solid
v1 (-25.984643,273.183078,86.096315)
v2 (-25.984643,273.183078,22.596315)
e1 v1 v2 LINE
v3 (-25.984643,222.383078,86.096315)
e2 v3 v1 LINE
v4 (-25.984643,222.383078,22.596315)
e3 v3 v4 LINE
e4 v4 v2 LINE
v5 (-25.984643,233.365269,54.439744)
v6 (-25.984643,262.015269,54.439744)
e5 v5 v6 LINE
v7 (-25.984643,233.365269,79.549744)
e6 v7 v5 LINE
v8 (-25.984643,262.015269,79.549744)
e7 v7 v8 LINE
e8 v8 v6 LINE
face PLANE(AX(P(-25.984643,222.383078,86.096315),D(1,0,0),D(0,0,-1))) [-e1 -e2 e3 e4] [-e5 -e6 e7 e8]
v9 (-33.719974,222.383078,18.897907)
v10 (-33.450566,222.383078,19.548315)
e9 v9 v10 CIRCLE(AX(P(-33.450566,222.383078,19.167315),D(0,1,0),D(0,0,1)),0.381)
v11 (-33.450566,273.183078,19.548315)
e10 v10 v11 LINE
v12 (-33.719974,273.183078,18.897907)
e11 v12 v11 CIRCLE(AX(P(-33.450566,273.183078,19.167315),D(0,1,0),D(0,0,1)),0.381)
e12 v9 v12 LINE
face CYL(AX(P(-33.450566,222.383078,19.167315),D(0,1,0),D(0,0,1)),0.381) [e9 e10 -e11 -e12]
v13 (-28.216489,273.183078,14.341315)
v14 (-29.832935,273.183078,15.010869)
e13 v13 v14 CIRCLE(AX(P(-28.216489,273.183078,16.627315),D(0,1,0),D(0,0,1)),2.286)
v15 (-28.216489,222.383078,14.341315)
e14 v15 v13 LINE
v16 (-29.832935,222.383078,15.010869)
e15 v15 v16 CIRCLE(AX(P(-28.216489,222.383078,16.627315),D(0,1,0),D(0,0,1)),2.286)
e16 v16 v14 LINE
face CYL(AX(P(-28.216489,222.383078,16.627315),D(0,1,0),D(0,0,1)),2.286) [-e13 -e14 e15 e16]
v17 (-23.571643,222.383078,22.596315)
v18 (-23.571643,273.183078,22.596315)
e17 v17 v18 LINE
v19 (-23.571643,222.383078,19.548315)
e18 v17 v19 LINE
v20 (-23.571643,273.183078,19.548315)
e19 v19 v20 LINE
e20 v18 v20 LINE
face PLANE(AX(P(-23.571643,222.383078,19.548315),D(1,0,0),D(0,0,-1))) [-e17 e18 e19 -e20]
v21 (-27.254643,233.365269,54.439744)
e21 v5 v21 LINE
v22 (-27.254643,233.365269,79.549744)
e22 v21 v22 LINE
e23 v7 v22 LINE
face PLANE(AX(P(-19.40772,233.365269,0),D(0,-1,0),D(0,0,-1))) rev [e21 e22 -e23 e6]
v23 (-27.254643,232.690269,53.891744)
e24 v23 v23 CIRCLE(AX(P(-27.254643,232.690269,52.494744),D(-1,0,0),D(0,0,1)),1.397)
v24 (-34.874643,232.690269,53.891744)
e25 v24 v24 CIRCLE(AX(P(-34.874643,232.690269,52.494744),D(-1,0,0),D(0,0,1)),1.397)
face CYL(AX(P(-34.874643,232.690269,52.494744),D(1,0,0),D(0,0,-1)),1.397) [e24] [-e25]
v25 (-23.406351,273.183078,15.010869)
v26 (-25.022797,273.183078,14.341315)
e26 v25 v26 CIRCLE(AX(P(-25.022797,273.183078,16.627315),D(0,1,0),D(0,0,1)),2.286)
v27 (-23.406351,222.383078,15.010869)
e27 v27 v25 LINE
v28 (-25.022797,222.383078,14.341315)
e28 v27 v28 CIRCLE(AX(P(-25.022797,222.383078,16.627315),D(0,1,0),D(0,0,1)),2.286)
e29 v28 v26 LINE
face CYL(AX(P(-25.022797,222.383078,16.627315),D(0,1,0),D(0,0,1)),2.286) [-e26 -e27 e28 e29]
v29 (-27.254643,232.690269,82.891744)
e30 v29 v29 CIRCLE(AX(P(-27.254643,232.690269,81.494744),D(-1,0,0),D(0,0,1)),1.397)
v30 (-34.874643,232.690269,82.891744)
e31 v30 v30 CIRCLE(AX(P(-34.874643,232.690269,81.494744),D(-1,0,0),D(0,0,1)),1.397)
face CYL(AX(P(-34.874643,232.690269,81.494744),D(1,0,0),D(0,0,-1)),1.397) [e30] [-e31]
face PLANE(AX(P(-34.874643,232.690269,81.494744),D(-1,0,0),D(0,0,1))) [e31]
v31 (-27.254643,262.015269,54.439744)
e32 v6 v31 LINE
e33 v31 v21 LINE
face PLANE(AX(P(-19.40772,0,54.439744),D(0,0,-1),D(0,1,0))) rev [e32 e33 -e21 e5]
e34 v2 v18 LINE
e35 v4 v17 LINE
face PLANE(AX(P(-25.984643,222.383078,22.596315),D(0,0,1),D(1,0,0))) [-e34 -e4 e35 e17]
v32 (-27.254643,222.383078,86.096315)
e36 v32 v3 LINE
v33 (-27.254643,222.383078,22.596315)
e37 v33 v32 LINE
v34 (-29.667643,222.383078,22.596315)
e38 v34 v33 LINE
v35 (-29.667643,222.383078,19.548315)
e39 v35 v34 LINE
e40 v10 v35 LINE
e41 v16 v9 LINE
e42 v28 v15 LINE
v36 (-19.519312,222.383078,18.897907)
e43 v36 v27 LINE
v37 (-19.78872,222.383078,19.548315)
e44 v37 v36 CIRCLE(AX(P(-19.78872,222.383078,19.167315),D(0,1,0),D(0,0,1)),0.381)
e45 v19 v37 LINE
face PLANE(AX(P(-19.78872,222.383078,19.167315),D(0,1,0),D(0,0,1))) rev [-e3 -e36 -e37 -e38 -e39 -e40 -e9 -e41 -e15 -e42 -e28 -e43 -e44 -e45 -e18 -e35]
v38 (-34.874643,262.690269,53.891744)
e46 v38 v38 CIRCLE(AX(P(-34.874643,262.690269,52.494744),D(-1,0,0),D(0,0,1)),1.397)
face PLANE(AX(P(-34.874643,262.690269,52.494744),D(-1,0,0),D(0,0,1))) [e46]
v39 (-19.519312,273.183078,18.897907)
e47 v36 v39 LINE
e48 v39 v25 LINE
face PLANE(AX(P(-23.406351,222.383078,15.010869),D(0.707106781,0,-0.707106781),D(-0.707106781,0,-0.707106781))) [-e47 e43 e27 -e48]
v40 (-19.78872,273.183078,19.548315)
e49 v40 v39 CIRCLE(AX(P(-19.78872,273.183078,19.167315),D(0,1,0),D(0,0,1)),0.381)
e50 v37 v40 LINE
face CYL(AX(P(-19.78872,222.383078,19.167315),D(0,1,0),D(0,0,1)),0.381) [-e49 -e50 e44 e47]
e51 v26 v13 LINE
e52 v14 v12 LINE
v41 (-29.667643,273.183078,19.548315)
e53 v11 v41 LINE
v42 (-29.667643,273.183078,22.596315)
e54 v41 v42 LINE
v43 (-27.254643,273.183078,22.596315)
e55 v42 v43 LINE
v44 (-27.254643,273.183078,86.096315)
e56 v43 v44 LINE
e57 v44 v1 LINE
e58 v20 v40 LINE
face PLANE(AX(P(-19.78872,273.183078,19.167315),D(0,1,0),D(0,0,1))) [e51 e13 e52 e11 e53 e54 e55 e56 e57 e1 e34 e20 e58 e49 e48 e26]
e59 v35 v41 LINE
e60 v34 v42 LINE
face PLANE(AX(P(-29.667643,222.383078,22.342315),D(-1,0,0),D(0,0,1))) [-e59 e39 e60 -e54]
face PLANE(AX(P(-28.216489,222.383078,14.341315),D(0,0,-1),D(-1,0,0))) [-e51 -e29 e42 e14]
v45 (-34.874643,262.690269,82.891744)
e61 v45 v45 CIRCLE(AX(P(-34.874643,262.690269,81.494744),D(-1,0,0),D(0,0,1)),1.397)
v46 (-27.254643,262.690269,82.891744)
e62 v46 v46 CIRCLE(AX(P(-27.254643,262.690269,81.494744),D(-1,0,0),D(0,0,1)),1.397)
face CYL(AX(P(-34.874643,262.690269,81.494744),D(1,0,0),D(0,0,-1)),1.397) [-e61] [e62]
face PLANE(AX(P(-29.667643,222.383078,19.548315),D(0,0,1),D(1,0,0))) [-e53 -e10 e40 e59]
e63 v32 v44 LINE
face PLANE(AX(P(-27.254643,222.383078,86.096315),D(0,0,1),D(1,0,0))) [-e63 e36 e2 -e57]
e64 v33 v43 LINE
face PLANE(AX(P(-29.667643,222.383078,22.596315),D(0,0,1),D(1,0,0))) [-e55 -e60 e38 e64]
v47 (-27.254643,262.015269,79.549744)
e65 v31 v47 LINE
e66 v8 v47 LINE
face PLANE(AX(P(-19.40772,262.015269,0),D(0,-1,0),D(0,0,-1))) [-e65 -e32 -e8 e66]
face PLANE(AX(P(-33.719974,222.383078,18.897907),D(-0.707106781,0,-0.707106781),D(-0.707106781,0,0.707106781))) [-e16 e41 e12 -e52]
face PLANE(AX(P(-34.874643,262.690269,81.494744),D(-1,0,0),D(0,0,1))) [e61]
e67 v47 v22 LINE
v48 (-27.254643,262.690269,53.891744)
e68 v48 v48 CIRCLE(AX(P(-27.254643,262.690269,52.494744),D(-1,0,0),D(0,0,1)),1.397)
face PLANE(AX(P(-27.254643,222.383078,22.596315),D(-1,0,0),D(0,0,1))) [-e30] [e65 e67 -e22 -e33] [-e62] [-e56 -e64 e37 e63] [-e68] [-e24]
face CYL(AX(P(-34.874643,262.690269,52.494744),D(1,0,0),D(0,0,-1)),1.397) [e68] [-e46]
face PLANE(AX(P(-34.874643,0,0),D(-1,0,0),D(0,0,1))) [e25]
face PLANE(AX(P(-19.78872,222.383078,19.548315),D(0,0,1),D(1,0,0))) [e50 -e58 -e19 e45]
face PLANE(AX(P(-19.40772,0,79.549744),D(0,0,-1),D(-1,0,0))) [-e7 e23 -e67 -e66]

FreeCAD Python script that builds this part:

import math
import FreeCAD as App
import Part
import Sketcher
from FreeCAD import Vector
Q = App.Units.Quantity


def add_polygon(sketch, points):
    """Adds a closed chain of lines whose ends are joined by coincident constraints."""
    first, n = sketch.GeometryCount, len(points)
    for a, b in zip(points, points[1:] + points[:1]):
        sketch.addGeometry(Part.LineSegment(App.Vector(*a, 0), App.Vector(*b, 0)), False)
    for i in range(n):
        sketch.addConstraint(Sketcher.Constraint("Coincident", first + i, 2, first + (i + 1) % n, 1))

doc = App.newDocument("Part")
body = doc.addObject("PartDesign::Body", "Body")

# Sketch on XZ plane
sketch1 = body.newObject("Sketcher::SketchObject", "Sketch")
sketch1.AttachmentSupport = (doc.getObject("XZ_Plane"), [""])
sketch1.MapMode = "FlatFace"
sketch1.AttachmentOffset = App.Placement(Vector(0, 0, -273.183078), App.Rotation())
sketch1.addGeometry([
    Part.LineSegment(Vector(-29.67, 22.6, 0), Vector(-27.25, 22.6, 0)),  # 0
    Part.LineSegment(Vector(-27.25, 22.6, 0), Vector(-27.25, 86.1, 0)),  # 1
    Part.LineSegment(Vector(-27.25, 86.1, 0), Vector(-25.98, 86.1, 0)),  # 2
    Part.LineSegment(Vector(-25.98, 86.1, 0), Vector(-25.98, 22.6, 0)),  # 3
    Part.LineSegment(Vector(-25.98, 22.6, 0), Vector(-23.57, 22.6, 0)),  # 4
    Part.LineSegment(Vector(-23.57, 22.6, 0), Vector(-23.57, 19.55, 0)),  # 5
    Part.LineSegment(Vector(-23.57, 19.55, 0), Vector(-19.79, 19.55, 0)),  # 6
    Part.ArcOfCircle(Part.Circle(Vector(-19.79, 19.17, 0), Vector(0, 0, 1), 0.38), math.radians(-45), math.radians(90)),  # 7
    Part.LineSegment(Vector(-19.52, 18.9, 0), Vector(-23.41, 15.01, 0)),  # 8
    Part.ArcOfCircle(Part.Circle(Vector(-25.02, 16.63, 0), Vector(0, 0, 1), 2.29), math.radians(-90), math.radians(-45)),  # 9
    Part.LineSegment(Vector(-25.02, 14.34, 0), Vector(-28.22, 14.34, 0)),  # 10
    Part.ArcOfCircle(Part.Circle(Vector(-28.22, 16.63, 0), Vector(0, 0, 1), 2.29), math.radians(-135), math.radians(-90)),  # 11
    Part.LineSegment(Vector(-29.83, 15.01, 0), Vector(-33.72, 18.9, 0)),  # 12
    Part.ArcOfCircle(Part.Circle(Vector(-33.45, 19.17, 0), Vector(0, 0, 1), 0.38), math.radians(90), math.radians(225)),  # 13
    Part.LineSegment(Vector(-33.45, 19.55, 0), Vector(-29.67, 19.55, 0)),  # 14
    Part.LineSegment(Vector(-29.67, 19.55, 0), Vector(-29.67, 22.6, 0)),  # 15
], False)
sketch1.addConstraint([
    Sketcher.Constraint("Coincident", 0, 2, 1, 1),
    Sketcher.Constraint("Coincident", 1, 2, 2, 1),
    Sketcher.Constraint("Coincident", 2, 2, 3, 1),
    Sketcher.Constraint("Coincident", 3, 2, 4, 1),
    Sketcher.Constraint("Coincident", 4, 2, 5, 1),
    Sketcher.Constraint("Coincident", 5, 2, 6, 1),
    Sketcher.Constraint("Tangent", 6, 2, 7, 2),
    Sketcher.Constraint("Tangent", 7, 1, 8, 1),
    Sketcher.Constraint("Tangent", 8, 2, 9, 2),
    Sketcher.Constraint("Tangent", 9, 1, 10, 1),
    Sketcher.Constraint("Tangent", 10, 2, 11, 2),
    Sketcher.Constraint("Tangent", 11, 1, 12, 1),
    Sketcher.Constraint("Tangent", 12, 2, 13, 2),
    Sketcher.Constraint("Tangent", 13, 1, 14, 1),
    Sketcher.Constraint("Coincident", 14, 2, 15, 1),
    Sketcher.Constraint("Coincident", 15, 2, 0, 1),
    Sketcher.Constraint("Horizontal", 0),
    Sketcher.Constraint("Vertical", 1),
    Sketcher.Constraint("Horizontal", 2),
    Sketcher.Constraint("Vertical", 3),
    Sketcher.Constraint("Horizontal", 4),
    Sketcher.Constraint("Vertical", 5),
    Sketcher.Constraint("Horizontal", 6),
    Sketcher.Constraint("Horizontal", 10),
    Sketcher.Constraint("Horizontal", 14),
    Sketcher.Constraint("Vertical", 15),
    Sketcher.Constraint("Equal", 9, 11),
    Sketcher.Constraint("Equal", 7, 13),
    Sketcher.Constraint("Perpendicular", 8, 12),
    Sketcher.Constraint("Horizontal", 7, 3, 13, 3),
    Sketcher.Constraint("Horizontal", 0, 2, 3, 2),
    Sketcher.Constraint("Horizontal", 8, 2, 11, 1),
    Sketcher.Constraint("Equal", 0, 4),
    Sketcher.Constraint("Equal", 6, 14),
    Sketcher.Constraint("Radius", 9, Q("0.09 in")),
    Sketcher.Constraint("DistanceY", 1, 1, 1, 2, Q("2.5 in")),
    Sketcher.Constraint("Radius", 7, Q("0.015 in")),
    Sketcher.Constraint("DistanceX", 2, 1, 2, 2, Q("0.05 in")),
    Sketcher.Constraint("DistanceY", 5, 2, 5, 1, Q("0.12 in")),
    Sketcher.Constraint("DistanceY", 9, 3, 7, 3, Q("0.1 in")),
    Sketcher.Constraint("DistanceX", 0, 1, 0, 2, Q("0.095 in")),
    Sketcher.Constraint("DistanceX", 6, 1, 6, 2, 3.782923),
    Sketcher.Constraint("DistanceX", 7, 3, -1, 1, 19.78872),
    Sketcher.Constraint("DistanceY", -1, 1, 8, 2, 15.010869),
])
pad1 = body.newObject("PartDesign::Pad", "Pad")
pad1.Profile = sketch1
pad1.Length = Q("2 in")

# Sketch on YZ plane
sketch2 = body.newObject("Sketcher::SketchObject", "Sketch001")
sketch2.AttachmentSupport = (doc.getObject("YZ_Plane"), [""])
sketch2.MapMode = "FlatFace"
sketch2.AttachmentOffset = App.Placement(Vector(0, 0, -27.254643), App.Rotation())
sketch2.addGeometry([
    Part.Circle(Vector(232.7, 52.5, 0), Vector(0, 0, 1), 1.4),
    Part.Circle(Vector(262.7, 52.5, 0), Vector(0, 0, 1), 1.4),
    Part.Circle(Vector(262.7, 81.5, 0), Vector(0, 0, 1), 1.4),
    Part.Circle(Vector(232.7, 81.5, 0), Vector(0, 0, 1), 1.4),
], False)
sketch2.addConstraint([
    Sketcher.Constraint("Equal", 0, 1),
    Sketcher.Constraint("Equal", 1, 2),
    Sketcher.Constraint("Equal", 2, 3),
    Sketcher.Constraint("Horizontal", 0, 3, 1, 3),
    Sketcher.Constraint("Horizontal", 2, 3, 3, 3),
    Sketcher.Constraint("Vertical", 1, 3, 2, 3),
    Sketcher.Constraint("Vertical", 0, 3, 3, 3),
    Sketcher.Constraint("Diameter", 0, Q("0.11 in")),
    Sketcher.Constraint("DistanceX", 0, 3, 1, 3, 30.0),
    Sketcher.Constraint("DistanceY", 1, 3, 2, 3, 29.0),
    Sketcher.Constraint("DistanceX", -1, 1, 0, 3, 232.690269),
    Sketcher.Constraint("DistanceY", -1, 1, 0, 3, 52.494744),
])
pad2 = body.newObject("PartDesign::Pad", "Pad001")
pad2.Profile = sketch2
pad2.Length = Q("0.3 in")
pad2.Reversed = True

# Sketch on YZ plane
sketch3 = body.newObject("Sketcher::SketchObject", "Sketch002")
sketch3.AttachmentSupport = (doc.getObject("YZ_Plane"), [""])
sketch3.MapMode = "FlatFace"
sketch3.AttachmentOffset = App.Placement(Vector(0, 0, -27.254643), App.Rotation())
add_polygon(sketch3, [(262, 54), (233, 54), (233, 80), (262, 80)])  # lines 0-3
sketch3.addConstraint([
    Sketcher.Constraint("Horizontal", 0),
    Sketcher.Constraint("Vertical", 1),
    Sketcher.Constraint("Horizontal", 2),
    Sketcher.Constraint("Vertical", 3),
    Sketcher.Constraint("DistanceX", 0, 2, 0, 1, 28.65),
    Sketcher.Constraint("DistanceY", 1, 1, 1, 2, 25.11),
    Sketcher.Constraint("DistanceX", -1, 1, 0, 2, 233.365269),
    Sketcher.Constraint("DistanceY", -1, 1, 0, 2, 54.439744),
])
pocket1 = body.newObject("PartDesign::Pocket", "Pocket")
pocket1.Profile = sketch3
pocket1.Type = "ThroughAll"
pocket1.Reversed = True

doc.recompute()
